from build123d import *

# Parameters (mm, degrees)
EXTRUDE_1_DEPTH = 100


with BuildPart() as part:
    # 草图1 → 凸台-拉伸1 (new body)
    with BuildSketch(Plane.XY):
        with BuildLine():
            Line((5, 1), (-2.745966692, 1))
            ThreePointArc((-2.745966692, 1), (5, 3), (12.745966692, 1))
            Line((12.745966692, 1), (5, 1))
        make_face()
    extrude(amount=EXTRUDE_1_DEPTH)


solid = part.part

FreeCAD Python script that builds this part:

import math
import FreeCAD as App
import Part
import Sketcher

doc = App.newDocument("Part")
params = doc.addObject("Spreadsheet::Sheet", "Params")
for row, (alias, value) in enumerate([
    ("sketch1_radius", "16 mm"),
    ("pad1_length", "100 mm"),
], start=1):
    params.set(f"A{row}", alias)
    params.set(f"B{row}", "=" + value)
    params.setAlias(f"B{row}", alias)

body = doc.addObject("PartDesign::Body", "Body")

# Sketch on XY plane
sketch1 = body.newObject("Sketcher::SketchObject", "Sketch")
sketch1.AttachmentSupport = (doc.getObject("XY_Plane"), [""])
sketch1.MapMode = "FlatFace"
sketch1.addGeometry([
    Part.ArcOfCircle(Part.Circle(App.Vector(5, -13, 0), App.Vector(0, 0, 1), 16), math.radians(61), math.radians(119)),
    Part.LineSegment(App.Vector(-3, 1, 0), App.Vector(13, 1, 0)),
], False)
sketch1.addConstraint([
    Sketcher.Constraint("Coincident", 0, 1, 1, 2),
    Sketcher.Constraint("Coincident", 1, 1, 0, 2),
    Sketcher.Constraint("Horizontal", 1),
    Sketcher.Constraint("Radius", 0, 16.0),
    Sketcher.Constraint("DistanceX", -1, 1, 0, 3, 5.0),
    Sketcher.Constraint("DistanceY", 0, 3, -1, 1, 13.0),
    Sketcher.Constraint("DistanceY", -1, 1, 0, 1, 1.0),
])
sketch1.setExpression("Constraints[3]", "Params.sketch1_radius")
pad1 = body.newObject("PartDesign::Pad", "Pad")
pad1.Profile = sketch1
pad1.setExpression("Length", "Params.pad1_length")

doc.recompute()
